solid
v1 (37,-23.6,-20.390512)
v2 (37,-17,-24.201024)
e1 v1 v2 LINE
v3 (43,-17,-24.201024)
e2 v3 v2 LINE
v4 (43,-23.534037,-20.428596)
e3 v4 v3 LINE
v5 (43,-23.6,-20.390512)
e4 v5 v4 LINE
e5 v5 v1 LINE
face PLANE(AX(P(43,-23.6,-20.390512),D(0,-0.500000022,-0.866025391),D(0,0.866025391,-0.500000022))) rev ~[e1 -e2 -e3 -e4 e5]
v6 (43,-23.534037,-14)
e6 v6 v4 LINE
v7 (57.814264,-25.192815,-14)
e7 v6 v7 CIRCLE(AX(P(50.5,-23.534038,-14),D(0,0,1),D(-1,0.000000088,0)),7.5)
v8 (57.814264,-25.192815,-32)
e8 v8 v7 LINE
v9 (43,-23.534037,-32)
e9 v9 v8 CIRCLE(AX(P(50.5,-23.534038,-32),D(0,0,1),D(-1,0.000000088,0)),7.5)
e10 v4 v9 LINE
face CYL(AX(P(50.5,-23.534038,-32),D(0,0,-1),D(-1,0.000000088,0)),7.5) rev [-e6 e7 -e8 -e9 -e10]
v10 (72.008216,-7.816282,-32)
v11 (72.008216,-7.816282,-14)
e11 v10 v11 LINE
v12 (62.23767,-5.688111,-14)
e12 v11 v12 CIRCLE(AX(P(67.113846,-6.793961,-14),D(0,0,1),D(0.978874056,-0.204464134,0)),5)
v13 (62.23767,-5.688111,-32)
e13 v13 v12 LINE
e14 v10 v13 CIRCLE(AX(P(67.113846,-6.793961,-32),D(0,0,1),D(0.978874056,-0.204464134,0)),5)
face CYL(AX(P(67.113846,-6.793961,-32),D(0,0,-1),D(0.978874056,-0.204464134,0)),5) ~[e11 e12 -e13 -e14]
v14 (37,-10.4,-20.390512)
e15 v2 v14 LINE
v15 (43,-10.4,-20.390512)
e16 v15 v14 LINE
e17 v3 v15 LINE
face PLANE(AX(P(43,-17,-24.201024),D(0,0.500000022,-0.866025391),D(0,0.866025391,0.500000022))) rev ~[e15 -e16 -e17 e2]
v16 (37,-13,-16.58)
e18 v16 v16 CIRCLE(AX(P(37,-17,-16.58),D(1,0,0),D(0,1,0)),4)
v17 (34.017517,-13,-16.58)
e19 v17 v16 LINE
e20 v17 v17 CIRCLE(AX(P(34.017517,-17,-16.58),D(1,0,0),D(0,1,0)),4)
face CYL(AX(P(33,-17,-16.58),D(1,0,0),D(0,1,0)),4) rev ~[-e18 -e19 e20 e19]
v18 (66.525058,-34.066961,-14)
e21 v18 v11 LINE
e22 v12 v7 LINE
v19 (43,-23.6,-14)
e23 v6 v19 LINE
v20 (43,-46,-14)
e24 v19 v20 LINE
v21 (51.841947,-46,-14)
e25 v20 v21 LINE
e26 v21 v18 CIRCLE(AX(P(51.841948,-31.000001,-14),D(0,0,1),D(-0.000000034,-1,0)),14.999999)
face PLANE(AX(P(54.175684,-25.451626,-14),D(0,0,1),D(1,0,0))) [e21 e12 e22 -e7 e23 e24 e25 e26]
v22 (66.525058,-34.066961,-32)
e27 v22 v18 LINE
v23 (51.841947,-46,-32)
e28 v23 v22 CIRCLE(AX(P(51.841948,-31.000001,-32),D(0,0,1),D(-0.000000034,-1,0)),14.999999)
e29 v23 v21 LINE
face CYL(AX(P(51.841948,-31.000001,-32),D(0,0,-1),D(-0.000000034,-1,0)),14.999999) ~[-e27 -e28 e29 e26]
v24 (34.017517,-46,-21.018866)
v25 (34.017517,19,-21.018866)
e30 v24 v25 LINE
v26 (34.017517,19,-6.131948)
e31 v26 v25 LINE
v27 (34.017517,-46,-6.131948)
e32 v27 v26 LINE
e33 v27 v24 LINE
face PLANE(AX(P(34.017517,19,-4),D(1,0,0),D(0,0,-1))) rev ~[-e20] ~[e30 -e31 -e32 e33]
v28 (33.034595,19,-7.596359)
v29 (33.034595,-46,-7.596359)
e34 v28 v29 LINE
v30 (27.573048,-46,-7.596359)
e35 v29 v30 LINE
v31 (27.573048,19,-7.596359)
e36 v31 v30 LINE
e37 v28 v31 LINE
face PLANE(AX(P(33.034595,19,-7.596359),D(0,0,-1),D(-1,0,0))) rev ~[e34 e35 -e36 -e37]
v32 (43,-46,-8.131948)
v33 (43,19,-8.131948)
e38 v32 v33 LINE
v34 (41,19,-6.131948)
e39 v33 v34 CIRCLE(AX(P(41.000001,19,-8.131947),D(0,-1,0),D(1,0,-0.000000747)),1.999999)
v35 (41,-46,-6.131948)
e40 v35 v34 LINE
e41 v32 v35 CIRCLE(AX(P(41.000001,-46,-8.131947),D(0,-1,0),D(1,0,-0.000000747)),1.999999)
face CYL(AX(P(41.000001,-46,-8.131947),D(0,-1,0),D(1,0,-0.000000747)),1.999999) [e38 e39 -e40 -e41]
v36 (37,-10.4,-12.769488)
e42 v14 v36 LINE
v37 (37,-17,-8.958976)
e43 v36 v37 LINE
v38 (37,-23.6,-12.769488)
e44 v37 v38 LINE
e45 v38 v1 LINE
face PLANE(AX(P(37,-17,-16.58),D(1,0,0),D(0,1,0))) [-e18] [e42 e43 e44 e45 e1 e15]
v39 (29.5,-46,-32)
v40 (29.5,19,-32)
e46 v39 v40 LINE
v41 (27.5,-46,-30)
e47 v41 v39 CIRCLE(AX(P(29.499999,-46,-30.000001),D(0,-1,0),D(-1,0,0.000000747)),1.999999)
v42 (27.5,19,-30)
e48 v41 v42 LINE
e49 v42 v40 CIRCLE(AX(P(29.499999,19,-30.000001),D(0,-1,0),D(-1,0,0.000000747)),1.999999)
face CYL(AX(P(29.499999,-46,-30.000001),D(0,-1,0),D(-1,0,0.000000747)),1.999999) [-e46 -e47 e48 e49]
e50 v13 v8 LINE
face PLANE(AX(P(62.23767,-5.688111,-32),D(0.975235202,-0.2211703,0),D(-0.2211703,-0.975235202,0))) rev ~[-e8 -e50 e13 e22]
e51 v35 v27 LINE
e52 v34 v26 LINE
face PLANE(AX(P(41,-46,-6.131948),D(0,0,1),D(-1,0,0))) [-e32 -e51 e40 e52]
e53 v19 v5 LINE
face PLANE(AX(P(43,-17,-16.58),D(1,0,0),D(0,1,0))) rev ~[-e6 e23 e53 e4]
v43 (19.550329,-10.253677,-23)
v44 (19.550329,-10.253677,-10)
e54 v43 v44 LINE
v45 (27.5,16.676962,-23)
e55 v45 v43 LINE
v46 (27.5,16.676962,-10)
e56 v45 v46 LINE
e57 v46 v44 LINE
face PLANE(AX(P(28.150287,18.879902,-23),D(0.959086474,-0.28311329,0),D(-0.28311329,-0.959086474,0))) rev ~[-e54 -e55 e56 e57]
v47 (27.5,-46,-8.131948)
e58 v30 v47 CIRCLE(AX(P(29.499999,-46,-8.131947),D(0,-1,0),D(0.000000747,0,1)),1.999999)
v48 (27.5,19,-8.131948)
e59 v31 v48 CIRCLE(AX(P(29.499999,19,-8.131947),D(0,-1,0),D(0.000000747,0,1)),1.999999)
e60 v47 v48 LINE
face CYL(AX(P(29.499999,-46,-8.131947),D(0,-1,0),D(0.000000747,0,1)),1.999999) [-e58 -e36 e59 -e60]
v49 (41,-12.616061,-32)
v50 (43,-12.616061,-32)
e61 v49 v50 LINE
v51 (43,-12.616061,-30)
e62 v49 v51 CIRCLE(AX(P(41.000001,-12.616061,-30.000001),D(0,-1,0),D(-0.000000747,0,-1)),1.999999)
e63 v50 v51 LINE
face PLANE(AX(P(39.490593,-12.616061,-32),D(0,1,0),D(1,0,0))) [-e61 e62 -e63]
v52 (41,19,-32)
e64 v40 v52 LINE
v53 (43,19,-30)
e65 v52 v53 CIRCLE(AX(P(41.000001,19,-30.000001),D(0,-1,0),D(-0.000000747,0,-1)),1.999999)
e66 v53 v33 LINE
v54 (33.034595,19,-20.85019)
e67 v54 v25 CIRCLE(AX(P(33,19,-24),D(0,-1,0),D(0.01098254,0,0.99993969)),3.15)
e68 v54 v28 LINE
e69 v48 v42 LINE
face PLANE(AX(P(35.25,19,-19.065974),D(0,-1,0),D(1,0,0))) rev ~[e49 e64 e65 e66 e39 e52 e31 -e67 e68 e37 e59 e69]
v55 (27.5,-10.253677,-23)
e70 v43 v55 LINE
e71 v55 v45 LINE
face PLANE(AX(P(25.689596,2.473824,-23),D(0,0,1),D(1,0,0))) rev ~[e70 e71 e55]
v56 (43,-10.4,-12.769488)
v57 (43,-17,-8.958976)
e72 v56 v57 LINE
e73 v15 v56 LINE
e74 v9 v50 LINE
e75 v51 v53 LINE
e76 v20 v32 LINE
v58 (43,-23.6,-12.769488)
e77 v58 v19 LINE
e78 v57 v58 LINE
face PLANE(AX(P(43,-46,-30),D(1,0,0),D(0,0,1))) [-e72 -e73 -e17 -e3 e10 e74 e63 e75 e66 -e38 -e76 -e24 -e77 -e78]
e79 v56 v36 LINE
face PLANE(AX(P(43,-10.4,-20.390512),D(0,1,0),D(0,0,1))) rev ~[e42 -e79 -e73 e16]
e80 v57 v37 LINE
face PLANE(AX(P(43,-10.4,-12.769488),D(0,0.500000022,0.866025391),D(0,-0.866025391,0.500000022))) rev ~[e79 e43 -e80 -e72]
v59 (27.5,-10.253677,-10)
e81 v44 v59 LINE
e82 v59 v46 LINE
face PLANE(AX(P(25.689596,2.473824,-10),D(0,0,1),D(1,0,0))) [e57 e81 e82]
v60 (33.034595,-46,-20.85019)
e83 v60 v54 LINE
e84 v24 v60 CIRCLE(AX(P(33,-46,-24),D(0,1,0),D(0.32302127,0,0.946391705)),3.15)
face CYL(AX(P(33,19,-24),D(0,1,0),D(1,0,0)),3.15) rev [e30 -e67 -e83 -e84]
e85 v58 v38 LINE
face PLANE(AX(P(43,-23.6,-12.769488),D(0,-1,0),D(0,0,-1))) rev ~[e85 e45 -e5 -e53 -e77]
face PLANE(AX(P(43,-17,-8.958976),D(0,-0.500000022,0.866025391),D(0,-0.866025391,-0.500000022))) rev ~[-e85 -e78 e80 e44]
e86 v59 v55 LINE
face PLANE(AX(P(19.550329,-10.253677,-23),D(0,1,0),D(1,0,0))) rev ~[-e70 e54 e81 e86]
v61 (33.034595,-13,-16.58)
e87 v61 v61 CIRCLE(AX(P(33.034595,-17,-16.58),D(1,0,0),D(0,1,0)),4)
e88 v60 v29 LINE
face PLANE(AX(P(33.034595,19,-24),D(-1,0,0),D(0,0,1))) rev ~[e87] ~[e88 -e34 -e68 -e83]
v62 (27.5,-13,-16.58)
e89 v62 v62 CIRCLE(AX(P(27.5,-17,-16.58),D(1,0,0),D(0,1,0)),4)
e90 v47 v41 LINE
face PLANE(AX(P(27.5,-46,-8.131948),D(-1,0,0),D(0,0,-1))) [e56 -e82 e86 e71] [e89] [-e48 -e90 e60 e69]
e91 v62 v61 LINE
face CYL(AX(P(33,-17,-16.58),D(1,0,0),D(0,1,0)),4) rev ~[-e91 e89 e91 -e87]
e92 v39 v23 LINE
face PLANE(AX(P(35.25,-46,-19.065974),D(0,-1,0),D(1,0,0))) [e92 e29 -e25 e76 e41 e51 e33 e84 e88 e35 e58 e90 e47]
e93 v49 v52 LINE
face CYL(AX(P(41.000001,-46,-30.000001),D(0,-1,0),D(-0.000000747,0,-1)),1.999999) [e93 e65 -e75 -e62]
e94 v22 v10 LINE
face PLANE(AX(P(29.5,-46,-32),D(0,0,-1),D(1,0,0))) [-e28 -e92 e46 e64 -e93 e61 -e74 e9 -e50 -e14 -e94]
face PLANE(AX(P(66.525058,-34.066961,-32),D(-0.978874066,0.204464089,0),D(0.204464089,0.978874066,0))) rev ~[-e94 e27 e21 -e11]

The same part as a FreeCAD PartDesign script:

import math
import FreeCAD as App
import Part
import Sketcher

V = App.Vector
Q = App.Units.Quantity

doc = App.newDocument("Part")
params = doc.addObject("Spreadsheet::Sheet", "Params")
for row, (alias, value) in enumerate([
    ("sketch1_radius", "1.999999 mm"),
    ("sketch1_width", "11.5 mm"),
    ("pad1_length", "65 mm"),
    ("pad2_length", "13 mm"),
    ("sketch3_diameter", "8 mm"),
    ("pocket1_length", "65 mm"),
    ("sketch4_diameter", "6.3 mm"),
    ("pocket2_length", "75 mm"),
    ("sketch5_height", "20 mm"),
    ("pocket3_length", "65 mm"),
    ("sketch6_radius", "14.999999 mm"),
    ("sketch6_radius2", "5 mm"),
    ("sketch6_radius3", "7.5 mm"),
    ("sketch6_length", "20 mm"),
    ("pad3_length", "18 mm"),
    ("pocket4_length", "6 mm"),
], start=1):
    params.set(f"A{row}", alias)
    params.set(f"B{row}", "=" + value)
    params.setAlias(f"B{row}", alias)

body = doc.addObject("PartDesign::Body", "Body")

# Sketch on XZ plane
sketch1 = body.newObject("Sketcher::SketchObject", "Sketch")
sketch1.AttachmentSupport = (doc.getObject("XZ_Plane"), [""])
sketch1.MapMode = "FlatFace"
sketch1.AttachmentOffset = App.Placement(V(0, 0, 66), App.Rotation())
sketch1.addGeometry([
    Part.LineSegment(V(8, 17.9, 0), V(-3.5, 17.9, 0)),  # 0
    Part.ArcOfCircle(Part.Circle(V(-3.5, 15.9, 0), V(0, 0, 1), 2), math.radians(90), math.radians(180)),  # 1
    Part.LineSegment(V(-5.5, 15.9, 0), V(-5.5, -6, 0)),  # 2
    Part.ArcOfCircle(Part.Circle(V(-3.5, -6, 0), V(0, 0, 1), 2), math.radians(180), math.radians(270)),  # 3
    Part.LineSegment(V(-3.5, -8, 0), V(8, -8, 0)),  # 4
    Part.ArcOfCircle(Part.Circle(V(8, -6, 0), V(0, 0, 1), 2), math.radians(-90), math.radians(0)),  # 5
    Part.LineSegment(V(10, -6, 0), V(10, 15.9, 0)),  # 6
    Part.ArcOfCircle(Part.Circle(V(8, 15.9, 0), V(0, 0, 1), 2), math.radians(0), math.radians(90)),  # 7
], False)
sketch1.addConstraint([
    Sketcher.Constraint("Tangent", 0, 2, 1, 1),
    Sketcher.Constraint("Tangent", 1, 2, 2, 1),
    Sketcher.Constraint("Tangent", 2, 2, 3, 1),
    Sketcher.Constraint("Tangent", 3, 2, 4, 1),
    Sketcher.Constraint("Tangent", 4, 2, 5, 1),
    Sketcher.Constraint("Tangent", 5, 2, 6, 1),
    Sketcher.Constraint("Tangent", 6, 2, 7, 1),
    Sketcher.Constraint("Tangent", 7, 2, 0, 1),
    Sketcher.Constraint("Horizontal", 0),
    Sketcher.Constraint("Vertical", 2),
    Sketcher.Constraint("Horizontal", 4),
    Sketcher.Constraint("Vertical", 6),
    Sketcher.Constraint("Equal", 1, 3),
    Sketcher.Constraint("Equal", 3, 5),
    Sketcher.Constraint("Equal", 5, 7),
    Sketcher.Constraint("Radius", 1, 1.999999),
    Sketcher.Constraint("DistanceX", 0, 2, 0, 1, 11.5),
    Sketcher.Constraint("DistanceY", 3, 3, -1, 1, 6.000001),
    Sketcher.Constraint("DistanceX", -1, 1, 5, 3, 8.000001),
    Sketcher.Constraint("DistanceY", 2, 2, 2, 1, 21.868052),
])
sketch1.setExpression("Constraints[15]", "Params.sketch1_radius")
sketch1.setExpression("Constraints[16]", "Params.sketch1_width")
pad1 = body.newObject("PartDesign::Pad", "Pad")
pad1.Profile = sketch1
pad1.setExpression("Length", "Params.pad1_length")
pad1.Reversed = True

# Sketch on XY plane
sketch2 = body.newObject("Sketcher::SketchObject", "Sketch001")
sketch2.AttachmentSupport = (doc.getObject("XY_Plane"), [""])
sketch2.MapMode = "FlatFace"
sketch2.AttachmentOffset = App.Placement(V(0, 0, 1), App.Rotation())
sketch2.addGeometry([
    Part.LineSegment(V(-5, -30, 0), V(-5, -1, 0)),
    Part.LineSegment(V(-5, -1, 0), V(-13, -30, 0)),
    Part.LineSegment(V(-13, -30, 0), V(-5, -30, 0)),
], False)
sketch2.addConstraint([
    Sketcher.Constraint("Coincident", 0, 2, 1, 1),
    Sketcher.Constraint("Coincident", 1, 2, 2, 1),
    Sketcher.Constraint("Coincident", 2, 2, 0, 1),
    Sketcher.Constraint("Vertical", 0),
    Sketcher.Constraint("Horizontal", 2),
    Sketcher.Constraint("DistanceX", 2, 1, 2, 2, 8.599958),
    Sketcher.Constraint("DistanceY", 0, 1, 0, 2, 29.133579),
    Sketcher.Constraint("DistanceX", 1, 2, -1, 1, 13.449671),
    Sketcher.Constraint("DistanceY", 0, 2, -1, 1, 1.120098),
])
pad2 = body.newObject("PartDesign::Pad", "Pad001")
pad2.Profile = sketch2
pad2.setExpression("Length", "Params.pad2_length")

# Sketch on YZ plane
sketch3 = body.newObject("Sketcher::SketchObject", "Sketch002")
sketch3.AttachmentSupport = (doc.getObject("YZ_Plane"), [""])
sketch3.MapMode = "FlatFace"
sketch3.addGeometry(Part.Circle(V(-37, 7.4, 0), V(0, 0, 1), 4), False)
sketch3.addConstraint([
    Sketcher.Constraint("Diameter", 0, 8.0),
    Sketcher.Constraint("DistanceX", 0, 3, -1, 1, 37.0),
    Sketcher.Constraint("DistanceY", -1, 1, 0, 3, 7.42),
])
sketch3.setExpression("Constraints[0]", "Params.sketch3_diameter")
pocket1 = body.newObject("PartDesign::Pocket", "Pocket")
pocket1.Profile = sketch3
pocket1.setExpression("Length", "Params.pocket1_length")
pocket1.Midplane = True

# Sketch on XZ plane
sketch4 = body.newObject("Sketcher::SketchObject", "Sketch003")
sketch4.AttachmentSupport = (doc.getObject("XZ_Plane"), [""])
sketch4.MapMode = "FlatFace"
sketch4.AttachmentOffset = App.Placement(V(0, 0, 1), App.Rotation())
sketch4.addGeometry(Part.Circle(V(0, 0, 0), V(0, 0, 1), 3.1), False)
sketch4.addConstraint([
    Sketcher.Constraint("Coincident", 0, 3, -1, 1),
    Sketcher.Constraint("Diameter", 0, 6.3),
])
sketch4.setExpression("Constraints[1]", "Params.sketch4_diameter")
pocket2 = body.newObject("PartDesign::Pocket", "Pocket001")
pocket2.Profile = sketch4
pocket2.setExpression("Length", "Params.pocket2_length")
pocket2.Reversed = True

# Sketch on XZ plane
sketch5 = body.newObject("Sketcher::SketchObject", "Sketch004")
sketch5.AttachmentSupport = (doc.getObject("XZ_Plane"), [""])
sketch5.MapMode = "FlatFace"
sketch5.AttachmentOffset = App.Placement(V(0, 0, 1), App.Rotation())
sketch5.addGeometry([
    Part.LineSegment(V(1, 20, 0), V(-6.3, 20, 0)),  # 0
    Part.LineSegment(V(-6.3, 20, 0), V(-6.3, 16.4, 0)),  # 1
    Part.LineSegment(V(-6.3, 16.4, 0), V(0, 16.4, 0)),  # 2
    Part.LineSegment(V(0, 16.4, 0), V(0, 0, 0)),  # 3
    Part.LineSegment(V(0, 0, 0), V(1, 0, 0)),  # 4
    Part.LineSegment(V(1, 0, 0), V(1, 20, 0)),  # 5
], False)
sketch5.addConstraint([
    Sketcher.Constraint("Coincident", 0, 2, 1, 1),
    Sketcher.Constraint("Coincident", 1, 2, 2, 1),
    Sketcher.Constraint("Coincident", 2, 2, 3, 1),
    Sketcher.Constraint("Coincident", 3, 2, 4, 1),
    Sketcher.Constraint("Coincident", 4, 2, 5, 1),
    Sketcher.Constraint("Coincident", 5, 2, 0, 1),
    Sketcher.Constraint("Horizontal", 0),
    Sketcher.Constraint("Vertical", 1),
    Sketcher.Constraint("Horizontal", 2),
    Sketcher.Constraint("Vertical", 3),
    Sketcher.Constraint("Horizontal", 4),
    Sketcher.Constraint("Vertical", 5),
    Sketcher.Constraint("PointOnObject", 3, 2, -1),
    Sketcher.Constraint("DistanceY", 5, 1, 5, 2, 20.0),
    Sketcher.Constraint("DistanceX", 0, 2, 0, 1, 7.338411),
    Sketcher.Constraint("DistanceX", 2, 1, 2, 2, 6.355489),
    Sketcher.Constraint("DistanceY", 1, 2, 1, 1, 3.596359),
    Sketcher.Constraint("DistanceX", 0, 2, -1, 1, 6.320894),
])
sketch5.setExpression("Constraints[13]", "Params.sketch5_height")
pocket3 = body.newObject("PartDesign::Pocket", "Pocket002")
pocket3.Profile = sketch5
pocket3.setExpression("Length", "Params.pocket3_length")
pocket3.Reversed = True

# Sketch on XY plane
sketch6 = body.newObject("Sketcher::SketchObject", "Sketch005")
sketch6.AttachmentSupport = (doc.getObject("XY_Plane"), [""])
sketch6.MapMode = "FlatFace"
sketch6.AttachmentOffset = App.Placement(V(0, 0, -8), App.Rotation())
sketch6.addGeometry([
    Part.LineSegment(V(6.5, -32.6, 0), V(6.5, -66, 0)),  # 0
    Part.LineSegment(V(6.5, -66, 0), V(18.8, -66, 0)),  # 1
    Part.ArcOfCircle(Part.Circle(V(18.8, -51, 0), V(0, 0, 1), 15), math.radians(-90), math.radians(-12)),  # 2
    Part.LineSegment(V(33.5, -54.1, 0), V(39, -27.8, 0)),  # 3
    Part.ArcOfCircle(Part.Circle(V(34.1, -26.8, 0), V(0, 0, 1), 5), math.radians(-12), math.radians(167)),  # 4
    Part.LineSegment(V(29.2, -25.7, 0), V(24.8, -45.2, 0)),  # 5
    Part.ArcOfCircle(Part.Circle(V(17.5, -43.5, 0), V(0, 0, 1), 7.5), math.radians(180), math.radians(347)),  # 6
    Part.LineSegment(V(10, -43.5, 0), V(10, -32.6, 0)),  # 7
    Part.LineSegment(V(10, -32.6, 0), V(6.5, -32.6, 0)),  # 8
], False)
sketch6.addConstraint([
    Sketcher.Constraint("Coincident", 0, 2, 1, 1),
    Sketcher.Constraint("Tangent", 1, 2, 2, 1),
    Sketcher.Constraint("Tangent", 2, 2, 3, 1),
    Sketcher.Constraint("Tangent", 3, 2, 4, 1),
    Sketcher.Constraint("Tangent", 4, 2, 5, 1),
    Sketcher.Constraint("Tangent", 5, 2, 6, 2),
    Sketcher.Constraint("Tangent", 6, 1, 7, 1),
    Sketcher.Constraint("Coincident", 7, 2, 8, 1),
    Sketcher.Constraint("Coincident", 8, 2, 0, 1),
    Sketcher.Constraint("Vertical", 0),
    Sketcher.Constraint("Horizontal", 1),
    Sketcher.Constraint("Vertical", 7),
    Sketcher.Constraint("Horizontal", 8),
    Sketcher.Constraint("Radius", 2, 14.999999),
    Sketcher.Constraint("Radius", 4, 5.0),
    Sketcher.Constraint("Radius", 6, 7.5),
    Sketcher.Constraint("Distance", 5, 20.0),
    Sketcher.Constraint("DistanceY", 2, 3, -1, 1, 51.000001),
    Sketcher.Constraint("DistanceX", -1, 1, 6, 1, 10.0),
    Sketcher.Constraint("DistanceY", 2, 2, 4, 3, 27.273),
    Sketcher.Constraint("DistanceY", 0, 2, 0, 1, 33.383939),
    Sketcher.Constraint("DistanceX", 2, 3, 4, 3, 15.271898),
    Sketcher.Constraint("DistanceX", 1, 1, 1, 2, 12.351354),
    Sketcher.Constraint("DistanceX", 8, 2, 8, 1, 3.509407),
])
sketch6.setExpression("Constraints[13]", "Params.sketch6_radius")
sketch6.setExpression("Constraints[14]", "Params.sketch6_radius2")
sketch6.setExpression("Constraints[15]", "Params.sketch6_radius3")
sketch6.setExpression("Constraints[16]", "Params.sketch6_length")
pad3 = body.newObject("PartDesign::Pad", "Pad002")
pad3.Profile = sketch6
pad3.setExpression("Length", "Params.pad3_length")

# Sketch on YZ plane
sketch7 = body.newObject("Sketcher::SketchObject", "Sketch006")
sketch7.AttachmentSupport = (doc.getObject("YZ_Plane"), [""])
sketch7.MapMode = "FlatFace"
sketch7.AttachmentOffset = App.Placement(V(0, 0, 10), App.Rotation())
sketch7.addGeometry([
    Part.LineSegment(V(-37, 15, 0), V(-44, 11, 0)),  # 0
    Part.LineSegment(V(-44, 11, 0), V(-44, 4, 0)),  # 1
    Part.LineSegment(V(-44, 4, 0), V(-37, 0, 0)),  # 2
    Part.LineSegment(V(-37, 0, 0), V(-30, 4, 0)),  # 3
    Part.LineSegment(V(-30, 4, 0), V(-30, 11, 0)),  # 4
    Part.LineSegment(V(-30, 11, 0), V(-37, 15, 0)),  # 5
], False)
sketch7.addConstraint([
    Sketcher.Constraint("Coincident", 0, 2, 1, 1),
    Sketcher.Constraint("Coincident", 1, 2, 2, 1),
    Sketcher.Constraint("Coincident", 2, 2, 3, 1),
    Sketcher.Constraint("Coincident", 3, 2, 4, 1),
    Sketcher.Constraint("Coincident", 4, 2, 5, 1),
    Sketcher.Constraint("Coincident", 5, 2, 0, 1),
    Sketcher.Constraint("Vertical", 1),
    Sketcher.Constraint("Vertical", 4),
    Sketcher.Constraint("Parallel", 0, 3),
    Sketcher.Constraint("Parallel", 2, 5),
    Sketcher.Constraint("Horizontal", 1, 2, 3, 2),
    Sketcher.Constraint("Horizontal", 0, 2, 4, 2),
    Sketcher.Constraint("Vertical", 2, 2, 5, 2),
    Sketcher.Constraint("Angle", 0, Q("-149.999999 deg")),
    Sketcher.Constraint("DistanceX", 2, 2, -1, 1, 37.0),
    Sketcher.Constraint("DistanceX", 0, 2, -1, 1, 43.6),
    Sketcher.Constraint("DistanceY", 1, 2, 1, 1, 7.621024),
    Sketcher.Constraint("DistanceY", -1, 1, 0, 2, 11.230512),
])
pocket4 = body.newObject("PartDesign::Pocket", "Pocket003")
pocket4.Profile = sketch7
pocket4.setExpression("Length", "Params.pocket4_length")
body2 = doc.addObject("PartDesign::Body", "Body001")
doc.recompute()

body.Placement = App.Placement(V(33, 20, -24), App.Rotation(V(0, 0, 1), 0))
boolean = body2.newObject("PartDesign::Boolean", "Boolean")
boolean.Type = "Fuse"
boolean.addObjects([body])

doc.recompute()
